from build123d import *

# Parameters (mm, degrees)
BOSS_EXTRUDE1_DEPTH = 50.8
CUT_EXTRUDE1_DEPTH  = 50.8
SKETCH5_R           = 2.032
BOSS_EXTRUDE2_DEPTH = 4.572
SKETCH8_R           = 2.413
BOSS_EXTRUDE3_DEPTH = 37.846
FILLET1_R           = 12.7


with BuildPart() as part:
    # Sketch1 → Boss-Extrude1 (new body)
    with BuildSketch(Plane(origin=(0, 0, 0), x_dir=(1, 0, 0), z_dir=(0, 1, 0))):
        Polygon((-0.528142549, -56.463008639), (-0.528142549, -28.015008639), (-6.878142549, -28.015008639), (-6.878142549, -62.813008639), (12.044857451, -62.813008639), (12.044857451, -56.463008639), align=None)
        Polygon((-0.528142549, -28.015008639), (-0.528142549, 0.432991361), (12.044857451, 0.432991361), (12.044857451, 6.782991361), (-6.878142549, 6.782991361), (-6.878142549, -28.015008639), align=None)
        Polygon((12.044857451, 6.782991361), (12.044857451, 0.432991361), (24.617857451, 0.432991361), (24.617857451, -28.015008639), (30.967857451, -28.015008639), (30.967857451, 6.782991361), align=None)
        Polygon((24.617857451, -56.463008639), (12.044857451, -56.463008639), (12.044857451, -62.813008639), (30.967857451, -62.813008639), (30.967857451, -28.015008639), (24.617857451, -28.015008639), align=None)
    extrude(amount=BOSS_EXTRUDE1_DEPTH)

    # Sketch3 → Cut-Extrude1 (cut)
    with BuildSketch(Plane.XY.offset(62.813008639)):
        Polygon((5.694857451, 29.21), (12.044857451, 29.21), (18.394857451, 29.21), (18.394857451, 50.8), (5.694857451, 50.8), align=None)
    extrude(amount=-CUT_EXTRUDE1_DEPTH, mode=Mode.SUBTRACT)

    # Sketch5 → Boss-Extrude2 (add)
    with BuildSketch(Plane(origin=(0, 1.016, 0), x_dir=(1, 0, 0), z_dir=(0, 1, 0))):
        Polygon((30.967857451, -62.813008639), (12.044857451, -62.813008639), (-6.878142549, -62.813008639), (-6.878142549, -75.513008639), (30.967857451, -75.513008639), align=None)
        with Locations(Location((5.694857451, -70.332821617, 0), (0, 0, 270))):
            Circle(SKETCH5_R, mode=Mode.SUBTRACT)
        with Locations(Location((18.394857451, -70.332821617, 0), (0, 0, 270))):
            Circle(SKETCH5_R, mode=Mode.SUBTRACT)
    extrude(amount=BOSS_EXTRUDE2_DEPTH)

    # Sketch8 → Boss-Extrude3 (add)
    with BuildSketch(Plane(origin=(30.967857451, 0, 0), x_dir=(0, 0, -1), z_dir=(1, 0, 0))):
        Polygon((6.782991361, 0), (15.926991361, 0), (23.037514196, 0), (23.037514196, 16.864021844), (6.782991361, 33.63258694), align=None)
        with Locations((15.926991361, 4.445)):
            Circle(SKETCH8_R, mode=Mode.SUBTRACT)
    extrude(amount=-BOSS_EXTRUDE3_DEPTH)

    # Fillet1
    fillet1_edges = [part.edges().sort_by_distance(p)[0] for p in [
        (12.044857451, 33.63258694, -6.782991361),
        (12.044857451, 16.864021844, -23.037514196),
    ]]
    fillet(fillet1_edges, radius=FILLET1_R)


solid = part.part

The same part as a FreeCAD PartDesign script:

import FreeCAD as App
import Part
import Sketcher

V = App.Vector
Q = App.Units.Quantity


def edges_at(feature, points):
    """Names of the edges that pass closest to the given points."""
    edges = feature.Shape.Edges
    near = lambda p: min(range(len(edges)), key=lambda i: edges[i].distToShape(Part.Vertex(*p))[0])
    return sorted({f"Edge{near(p) + 1}" for p in points})

doc = App.newDocument("Part")
body = doc.addObject("PartDesign::Body", "Body")

# Sketch on XZ plane
sketch1 = body.newObject("Sketcher::SketchObject", "Sketch")
sketch1.AttachmentSupport = (doc.getObject("XZ_Plane"), [""])
sketch1.MapMode = "FlatFace"
sketch1.addGeometry([
    Part.LineSegment(V(31, -7, 0), V(-7, -7, 0)),  # 0
    Part.LineSegment(V(-7, -7, 0), V(-7, 63, 0)),  # 1
    Part.LineSegment(V(-7, 63, 0), V(31, 63, 0)),  # 2
    Part.LineSegment(V(31, 63, 0), V(31, -7, 0)),  # 3
    Part.LineSegment(V(-1, 56, 0), V(-1, 0, 0)),  # 4
    Part.LineSegment(V(-1, 0, 0), V(25, 0, 0)),  # 5
    Part.LineSegment(V(25, 0, 0), V(25, 56, 0)),  # 6
    Part.LineSegment(V(25, 56, 0), V(-1, 56, 0)),  # 7
], False)
sketch1.addConstraint([
    Sketcher.Constraint("Coincident", 0, 2, 1, 1),
    Sketcher.Constraint("Coincident", 1, 2, 2, 1),
    Sketcher.Constraint("Coincident", 2, 2, 3, 1),
    Sketcher.Constraint("Coincident", 3, 2, 0, 1),
    Sketcher.Constraint("Coincident", 4, 2, 5, 1),
    Sketcher.Constraint("Coincident", 5, 2, 6, 1),
    Sketcher.Constraint("Coincident", 6, 2, 7, 1),
    Sketcher.Constraint("Coincident", 7, 2, 4, 1),
    Sketcher.Constraint("Horizontal", 0),
    Sketcher.Constraint("Vertical", 1),
    Sketcher.Constraint("Horizontal", 2),
    Sketcher.Constraint("Vertical", 3),
    Sketcher.Constraint("Vertical", 4),
    Sketcher.Constraint("Horizontal", 5),
    Sketcher.Constraint("Vertical", 6),
    Sketcher.Constraint("Horizontal", 7),
    Sketcher.Constraint("DistanceX", 0, 2, 0, 1, Q("1.49 in")),
    Sketcher.Constraint("DistanceX", 5, 1, 5, 2, Q("0.99 in")),
    Sketcher.Constraint("DistanceY", 1, 1, 1, 2, Q("2.74 in")),
    Sketcher.Constraint("DistanceY", 4, 2, 4, 1, Q("2.24 in")),
    Sketcher.Constraint("DistanceX", 0, 2, 4, 2, Q("0.25 in")),
    Sketcher.Constraint("DistanceY", 0, 2, 4, 2, Q("0.25 in")),
    Sketcher.Constraint("DistanceY", 0, 2, -1, 1, 6.782991),
    Sketcher.Constraint("DistanceX", 0, 2, -1, 1, 6.878143),
])
pad1 = body.newObject("PartDesign::Pad", "Pad")
pad1.Profile = sketch1
pad1.Length = Q("2 in")
pad1.Reversed = True

# Sketch on XY plane
sketch2 = body.newObject("Sketcher::SketchObject", "Sketch001")
sketch2.AttachmentSupport = (doc.getObject("XY_Plane"), [""])
sketch2.MapMode = "FlatFace"
sketch2.AttachmentOffset = App.Placement(V(0, 0, 62.813009), App.Rotation())
sketch2.addGeometry([
    Part.LineSegment(V(6, 29, 0), V(18, 29, 0)),
    Part.LineSegment(V(18, 29, 0), V(18, 51, 0)),
    Part.LineSegment(V(18, 51, 0), V(6, 51, 0)),
    Part.LineSegment(V(6, 51, 0), V(6, 29, 0)),
], False)
sketch2.addConstraint([
    Sketcher.Constraint("Coincident", 0, 2, 1, 1),
    Sketcher.Constraint("Coincident", 1, 2, 2, 1),
    Sketcher.Constraint("Coincident", 2, 2, 3, 1),
    Sketcher.Constraint("Coincident", 3, 2, 0, 1),
    Sketcher.Constraint("Horizontal", 0),
    Sketcher.Constraint("Vertical", 1),
    Sketcher.Constraint("Horizontal", 2),
    Sketcher.Constraint("Vertical", 3),
    Sketcher.Constraint("DistanceX", 0, 1, 0, 2, Q("0.5 in")),
    Sketcher.Constraint("DistanceY", -1, 1, 1, 2, Q("2 in")),
    Sketcher.Constraint("DistanceY", 1, 1, 1, 2, Q("0.85 in")),
    Sketcher.Constraint("DistanceX", -1, 1, 0, 2, 18.394857),
])
pocket1 = body.newObject("PartDesign::Pocket", "Pocket")
pocket1.Profile = sketch2
pocket1.Length = Q("2 in")

# Sketch on XZ plane
sketch3 = body.newObject("Sketcher::SketchObject", "Sketch002")
sketch3.AttachmentSupport = (doc.getObject("XZ_Plane"), [""])
sketch3.MapMode = "FlatFace"
sketch3.AttachmentOffset = App.Placement(V(0, 0, -0.04 * 25.4), App.Rotation())
sketch3.addGeometry([
    Part.LineSegment(V(31, 62.8, 0), V(-6.9, 62.8, 0)),  # 0
    Part.LineSegment(V(-6.9, 62.8, 0), V(-6.9, 75.5, 0)),  # 1
    Part.LineSegment(V(-6.9, 75.5, 0), V(31, 75.5, 0)),  # 2
    Part.LineSegment(V(31, 75.5, 0), V(31, 62.8, 0)),  # 3
    Part.Circle(V(5.7, 70.3, 0), V(0, 0, 1), 2),  # 4
    Part.Circle(V(18.4, 70.3, 0), V(0, 0, 1), 2),  # 5
], False)
sketch3.addConstraint([
    Sketcher.Constraint("Coincident", 0, 2, 1, 1),
    Sketcher.Constraint("Coincident", 1, 2, 2, 1),
    Sketcher.Constraint("Coincident", 2, 2, 3, 1),
    Sketcher.Constraint("Coincident", 3, 2, 0, 1),
    Sketcher.Constraint("Horizontal", 0),
    Sketcher.Constraint("Vertical", 1),
    Sketcher.Constraint("Horizontal", 2),
    Sketcher.Constraint("Vertical", 3),
    Sketcher.Constraint("Equal", 4, 5),
    Sketcher.Constraint("Horizontal", 4, 3, 5, 3),
    Sketcher.Constraint("Diameter", 4, Q("0.16 in")),
    Sketcher.Constraint("DistanceY", 1, 1, 1, 2, Q("0.5 in")),
    Sketcher.Constraint("DistanceX", 0, 2, 0, 1, Q("1.49 in")),
    Sketcher.Constraint("DistanceX", 4, 3, 5, 3, Q("0.5 in")),
    Sketcher.Constraint("DistanceX", 0, 2, 4, 3, Q("0.495 in")),
    Sketcher.Constraint("DistanceY", -1, 1, 4, 3, 70.332822),
    Sketcher.Constraint("DistanceY", -1, 1, 0, 2, 62.813009),
    Sketcher.Constraint("DistanceX", -1, 1, 4, 3, 5.694857),
])
pad2 = body.newObject("PartDesign::Pad", "Pad001")
pad2.Profile = sketch3
pad2.Length = Q("0.18 in")
pad2.Reversed = True

# Sketch on YZ plane
sketch4 = body.newObject("Sketcher::SketchObject", "Sketch003")
sketch4.AttachmentSupport = (doc.getObject("YZ_Plane"), [""])
sketch4.MapMode = "FlatFace"
sketch4.AttachmentOffset = App.Placement(V(0, 0, 30.967857), App.Rotation())
sketch4.addGeometry([
    Part.LineSegment(V(0, -6.8, 0), V(0, -23, 0)),  # 0
    Part.LineSegment(V(0, -23, 0), V(16.9, -23, 0)),  # 1
    Part.LineSegment(V(16.9, -23, 0), V(33.6, -6.8, 0)),  # 2
    Part.LineSegment(V(33.6, -6.8, 0), V(0, -6.8, 0)),  # 3
    Part.Circle(V(4.4, -15.9, 0), V(0, 0, 1), 2.4),  # 4
], False)
sketch4.addConstraint([
    Sketcher.Constraint("Coincident", 0, 2, 1, 1),
    Sketcher.Constraint("Coincident", 1, 2, 2, 1),
    Sketcher.Constraint("Coincident", 2, 2, 3, 1),
    Sketcher.Constraint("Coincident", 3, 2, 0, 1),
    Sketcher.Constraint("Vertical", 0),
    Sketcher.Constraint("Horizontal", 1),
    Sketcher.Constraint("Horizontal", 3),
    Sketcher.Constraint("PointOnObject", 0, 2, -2),
    Sketcher.Constraint("Diameter", 4, Q("0.19 in")),
    Sketcher.Constraint("DistanceY", 4, 3, 2, 2, Q("0.36 in")),
    Sketcher.Constraint("DistanceX", -1, 1, 4, 3, Q("0.175 in")),
    Sketcher.Constraint("DistanceX", 1, 1, 1, 2, 16.864022),
    Sketcher.Constraint("Distance", 2, 23.353678),
    Sketcher.Constraint("DistanceX", 3, 2, 3, 1, 33.632587),
    Sketcher.Constraint("DistanceY", 4, 3, -1, 1, 15.926991),
])
pad3 = body.newObject("PartDesign::Pad", "Pad002")
pad3.Profile = sketch4
pad3.Length = Q("1.49 in")
pad3.Reversed = True
doc.recompute()

fillet = body.newObject("PartDesign::Fillet", "Fillet")
fillet.Base = (pad3, edges_at(pad3, [(12.045, 33.633, -6.783), (12.045, 16.864, -23.038)]))
fillet.Radius = Q("0.5 in")

doc.recompute()
